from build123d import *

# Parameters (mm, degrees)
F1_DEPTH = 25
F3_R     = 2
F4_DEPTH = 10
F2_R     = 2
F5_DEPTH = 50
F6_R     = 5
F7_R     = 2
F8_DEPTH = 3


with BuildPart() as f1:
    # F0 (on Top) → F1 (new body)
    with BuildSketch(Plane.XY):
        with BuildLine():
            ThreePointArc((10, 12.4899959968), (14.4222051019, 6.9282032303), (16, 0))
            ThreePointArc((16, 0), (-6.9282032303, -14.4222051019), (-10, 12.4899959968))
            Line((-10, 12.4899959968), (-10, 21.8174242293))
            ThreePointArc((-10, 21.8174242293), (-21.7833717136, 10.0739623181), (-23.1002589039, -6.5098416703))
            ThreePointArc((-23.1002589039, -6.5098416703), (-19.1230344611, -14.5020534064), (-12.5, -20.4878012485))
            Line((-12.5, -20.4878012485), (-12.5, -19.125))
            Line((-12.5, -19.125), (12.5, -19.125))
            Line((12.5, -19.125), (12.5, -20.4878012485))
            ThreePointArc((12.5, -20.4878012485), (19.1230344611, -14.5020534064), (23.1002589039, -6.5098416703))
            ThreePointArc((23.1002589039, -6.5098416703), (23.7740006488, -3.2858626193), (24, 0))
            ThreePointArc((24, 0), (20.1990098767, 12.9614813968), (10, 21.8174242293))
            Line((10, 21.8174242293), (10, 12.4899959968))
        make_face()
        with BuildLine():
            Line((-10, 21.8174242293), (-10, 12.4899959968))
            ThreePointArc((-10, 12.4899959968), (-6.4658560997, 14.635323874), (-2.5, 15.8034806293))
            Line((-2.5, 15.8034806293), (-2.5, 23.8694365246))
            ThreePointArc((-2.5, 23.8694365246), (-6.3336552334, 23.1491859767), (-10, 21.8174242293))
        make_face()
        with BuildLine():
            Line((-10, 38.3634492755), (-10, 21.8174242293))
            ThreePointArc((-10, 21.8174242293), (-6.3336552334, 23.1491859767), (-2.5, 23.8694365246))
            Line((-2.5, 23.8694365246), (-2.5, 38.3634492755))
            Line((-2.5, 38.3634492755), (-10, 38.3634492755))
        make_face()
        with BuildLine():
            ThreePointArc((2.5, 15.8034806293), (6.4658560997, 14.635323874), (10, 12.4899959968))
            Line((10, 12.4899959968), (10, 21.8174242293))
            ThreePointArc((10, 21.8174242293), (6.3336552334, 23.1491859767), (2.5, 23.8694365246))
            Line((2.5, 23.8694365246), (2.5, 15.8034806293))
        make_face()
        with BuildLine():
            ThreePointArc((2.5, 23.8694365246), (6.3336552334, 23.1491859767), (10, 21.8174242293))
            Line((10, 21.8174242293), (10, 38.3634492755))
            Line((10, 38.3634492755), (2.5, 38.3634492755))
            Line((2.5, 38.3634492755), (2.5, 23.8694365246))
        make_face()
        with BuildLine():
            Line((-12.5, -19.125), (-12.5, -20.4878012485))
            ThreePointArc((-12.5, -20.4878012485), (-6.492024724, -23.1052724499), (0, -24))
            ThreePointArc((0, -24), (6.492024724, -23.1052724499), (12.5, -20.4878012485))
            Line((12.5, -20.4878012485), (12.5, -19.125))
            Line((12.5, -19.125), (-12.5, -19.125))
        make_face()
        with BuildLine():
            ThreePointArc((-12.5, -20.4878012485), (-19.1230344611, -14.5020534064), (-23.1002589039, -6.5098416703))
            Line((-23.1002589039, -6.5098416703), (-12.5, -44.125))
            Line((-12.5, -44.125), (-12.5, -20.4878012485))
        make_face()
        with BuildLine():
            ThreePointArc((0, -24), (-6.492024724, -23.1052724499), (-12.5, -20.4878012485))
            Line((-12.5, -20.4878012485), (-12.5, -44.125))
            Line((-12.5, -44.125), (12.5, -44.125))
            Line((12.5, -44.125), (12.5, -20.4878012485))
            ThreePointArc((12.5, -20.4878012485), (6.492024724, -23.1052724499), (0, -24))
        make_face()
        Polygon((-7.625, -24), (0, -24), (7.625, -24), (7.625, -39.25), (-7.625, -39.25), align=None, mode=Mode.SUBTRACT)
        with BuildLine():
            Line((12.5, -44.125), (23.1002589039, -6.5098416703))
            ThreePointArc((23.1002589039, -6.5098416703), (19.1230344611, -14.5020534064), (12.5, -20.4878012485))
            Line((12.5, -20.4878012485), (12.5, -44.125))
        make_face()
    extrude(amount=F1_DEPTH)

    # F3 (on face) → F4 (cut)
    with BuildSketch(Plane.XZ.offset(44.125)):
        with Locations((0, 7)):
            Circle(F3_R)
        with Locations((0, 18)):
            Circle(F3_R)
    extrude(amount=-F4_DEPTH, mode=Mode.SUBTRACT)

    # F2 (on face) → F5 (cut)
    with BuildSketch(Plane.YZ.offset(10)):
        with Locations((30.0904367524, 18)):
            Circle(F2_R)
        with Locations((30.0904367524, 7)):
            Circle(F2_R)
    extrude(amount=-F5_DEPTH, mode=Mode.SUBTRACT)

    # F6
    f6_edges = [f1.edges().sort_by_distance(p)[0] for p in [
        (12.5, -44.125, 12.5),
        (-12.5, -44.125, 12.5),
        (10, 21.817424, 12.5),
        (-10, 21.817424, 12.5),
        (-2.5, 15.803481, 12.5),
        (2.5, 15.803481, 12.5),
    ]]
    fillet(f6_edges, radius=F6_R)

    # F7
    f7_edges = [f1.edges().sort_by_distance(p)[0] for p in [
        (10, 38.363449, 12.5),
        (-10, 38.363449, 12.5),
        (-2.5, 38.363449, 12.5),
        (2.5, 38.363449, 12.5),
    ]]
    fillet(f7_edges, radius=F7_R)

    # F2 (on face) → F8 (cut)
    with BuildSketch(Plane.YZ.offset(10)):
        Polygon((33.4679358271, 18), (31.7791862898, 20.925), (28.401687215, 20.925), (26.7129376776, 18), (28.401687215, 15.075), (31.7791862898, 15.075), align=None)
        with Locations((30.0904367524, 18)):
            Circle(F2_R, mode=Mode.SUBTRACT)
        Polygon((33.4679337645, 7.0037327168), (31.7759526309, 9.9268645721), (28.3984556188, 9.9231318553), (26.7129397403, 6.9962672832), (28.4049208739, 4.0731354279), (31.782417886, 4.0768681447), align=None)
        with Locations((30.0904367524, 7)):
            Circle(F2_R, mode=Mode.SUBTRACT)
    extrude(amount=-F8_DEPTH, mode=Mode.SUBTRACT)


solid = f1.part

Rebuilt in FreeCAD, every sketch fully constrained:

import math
import FreeCAD as App
import Part
import Sketcher
from FreeCAD import Vector
Q = App.Units.Quantity


def edges_at(feature, points):
    """Names of the edges that pass closest to the given points."""
    edges = feature.Shape.Edges
    near = lambda p: min(range(len(edges)), key=lambda i: edges[i].distToShape(Part.Vertex(*p))[0])
    return sorted({f"Edge{near(p) + 1}" for p in points})

doc = App.newDocument("Part")
body = doc.addObject("PartDesign::Body", "Body")

# Sketch on XY plane
sketch1 = doc.addObject("Sketcher::SketchObject", "Sketch")
body.addObject(sketch1)
sketch1.AttachmentSupport = (doc.XY_Plane, [""])
sketch1.MapMode = "FlatFace"
sketch1.addGeometry(Part.ArcOfCircle(Part.Circle(Vector(0, 0, 0), Vector(0, 0, 1), 16), math.radians(0), math.radians(51)), False)
sketch1.addGeometry(Part.ArcOfCircle(Part.Circle(Vector(0, 0, 0), Vector(0, 0, 1), 16), math.radians(129), math.radians(360)), False)
sketch1.addGeometry(Part.ArcOfCircle(Part.Circle(Vector(0, 0, 0), Vector(0, 0, 1), 16), math.radians(99), math.radians(129)), False)
sketch1.addGeometry(Part.LineSegment(Vector(-2, 16, 0), Vector(-2, 38, 0)), False)
sketch1.addGeometry(Part.LineSegment(Vector(-2, 38, 0), Vector(-10, 38, 0)), False)
sketch1.addGeometry(Part.LineSegment(Vector(-10, 38, 0), Vector(-10, 22, 0)), False)
sketch1.addGeometry(Part.ArcOfCircle(Part.Circle(Vector(0, 0, 0), Vector(0, 0, 1), 24), math.radians(115), math.radians(196)), False)
sketch1.addGeometry(Part.LineSegment(Vector(-23, -7, 0), Vector(-12, -44, 0)), False)
sketch1.addGeometry(Part.LineSegment(Vector(-12, -44, 0), Vector(12, -44, 0)), False)
sketch1.addGeometry(Part.LineSegment(Vector(12, -44, 0), Vector(23, -7, 0)), False)
sketch1.addGeometry(Part.ArcOfCircle(Part.Circle(Vector(0, 0, 0), Vector(0, 0, 1), 24), math.radians(-15.74), math.radians(0)), False)
sketch1.addGeometry(Part.ArcOfCircle(Part.Circle(Vector(0, 0, 0), Vector(0, 0, 1), 24), math.radians(0), math.radians(65)), False)
sketch1.addGeometry(Part.LineSegment(Vector(10, 22, 0), Vector(10, 38, 0)), False)
sketch1.addGeometry(Part.LineSegment(Vector(10, 38, 0), Vector(2, 38, 0)), False)
sketch1.addGeometry(Part.LineSegment(Vector(2, 38, 0), Vector(2, 16, 0)), False)
sketch1.addGeometry(Part.ArcOfCircle(Part.Circle(Vector(0, 0, 0), Vector(0, 0, 1), 16), math.radians(51), math.radians(81)), False)
sketch1.addGeometry(Part.LineSegment(Vector(-8, -39, 0), Vector(-8, -24, 0)), False)
sketch1.addGeometry(Part.LineSegment(Vector(-8, -24, 0), Vector(8, -24, 0)), False)
sketch1.addGeometry(Part.LineSegment(Vector(8, -24, 0), Vector(8, -39, 0)), False)
sketch1.addGeometry(Part.LineSegment(Vector(8, -39, 0), Vector(-8, -39, 0)), False)
sketch1.addConstraint(Sketcher.Constraint("Tangent", 0, 1, 1, 2))
sketch1.addConstraint(Sketcher.Constraint("Tangent", 1, 1, 2, 2))
sketch1.addConstraint(Sketcher.Constraint("Coincident", 2, 1, 3, 1))
sketch1.addConstraint(Sketcher.Constraint("Coincident", 3, 2, 4, 1))
sketch1.addConstraint(Sketcher.Constraint("Coincident", 4, 2, 5, 1))
sketch1.addConstraint(Sketcher.Constraint("Coincident", 5, 2, 6, 1))
sketch1.addConstraint(Sketcher.Constraint("Tangent", 6, 2, 7, 1))
sketch1.addConstraint(Sketcher.Constraint("Coincident", 7, 2, 8, 1))
sketch1.addConstraint(Sketcher.Constraint("Coincident", 8, 2, 9, 1))
sketch1.addConstraint(Sketcher.Constraint("Tangent", 9, 2, 10, 1))
sketch1.addConstraint(Sketcher.Constraint("Tangent", 10, 2, 11, 1))
sketch1.addConstraint(Sketcher.Constraint("Coincident", 11, 2, 12, 1))
sketch1.addConstraint(Sketcher.Constraint("Coincident", 12, 2, 13, 1))
sketch1.addConstraint(Sketcher.Constraint("Coincident", 13, 2, 14, 1))
sketch1.addConstraint(Sketcher.Constraint("Coincident", 14, 2, 15, 2))
sketch1.addConstraint(Sketcher.Constraint("Tangent", 15, 1, 0, 2))
sketch1.addConstraint(Sketcher.Constraint("Coincident", 16, 2, 17, 1))
sketch1.addConstraint(Sketcher.Constraint("Coincident", 17, 2, 18, 1))
sketch1.addConstraint(Sketcher.Constraint("Coincident", 18, 2, 19, 1))
sketch1.addConstraint(Sketcher.Constraint("Coincident", 19, 2, 16, 1))
sketch1.addConstraint(Sketcher.Constraint("Vertical", 3))
sketch1.addConstraint(Sketcher.Constraint("Horizontal", 4))
sketch1.addConstraint(Sketcher.Constraint("Vertical", 5))
sketch1.addConstraint(Sketcher.Constraint("Horizontal", 8))
sketch1.addConstraint(Sketcher.Constraint("Vertical", 12))
sketch1.addConstraint(Sketcher.Constraint("Horizontal", 13))
sketch1.addConstraint(Sketcher.Constraint("Vertical", 14))
sketch1.addConstraint(Sketcher.Constraint("Vertical", 16))
sketch1.addConstraint(Sketcher.Constraint("Horizontal", 17))
sketch1.addConstraint(Sketcher.Constraint("Vertical", 18))
sketch1.addConstraint(Sketcher.Constraint("Horizontal", 19))
sketch1.addConstraint(Sketcher.Constraint("Coincident", 0, 3, -1, 1))
sketch1.addConstraint(Sketcher.Constraint("Coincident", 2, 3, -1, 1))
sketch1.addConstraint(Sketcher.Constraint("Coincident", 6, 3, -1, 1))
sketch1.addConstraint(Sketcher.Constraint("Coincident", 10, 3, -1, 1))
sketch1.addConstraint(Sketcher.Constraint("Equal", 6, 10))
sketch1.addConstraint(Sketcher.Constraint("Equal", 10, 11))
sketch1.addConstraint(Sketcher.Constraint("Equal", 2, 15))
sketch1.addConstraint(Sketcher.Constraint("Symmetric", 4, 2, 12, 2, -2))
sketch1.addConstraint(Sketcher.Constraint("PointOnObject", 0, 1, -1))
sketch1.addConstraint(Sketcher.Constraint("PointOnObject", 10, 2, -1))
sketch1.addConstraint(Sketcher.Constraint("Horizontal", 6, 2, 9, 2))
sketch1.addConstraint(Sketcher.Constraint("Horizontal", 2, 1, 14, 2))
sketch1.addConstraint(Sketcher.Constraint("Horizontal", 1, 1, 15, 1))
sketch1.addConstraint(Sketcher.Constraint("Vertical", 1, 1, 4, 2))
sketch1.addConstraint(Sketcher.Constraint("Equal", 19, 16))
sketch1.addConstraint(Sketcher.Constraint("Radius", 0, Q("16 mm")))
sketch1.addConstraint(Sketcher.Constraint("Radius", 6, Q("24 mm")))
sketch1.addConstraint(Sketcher.Constraint("DistanceX", 8, 1, 8, 2, Q("25 mm")))
sketch1.addConstraint(Sketcher.Constraint("DistanceX", 4, 2, 4, 1, Q("7.5 mm")))
sketch1.addConstraint(Sketcher.Constraint("DistanceX", 1, 1, -1, 1, Q("10 mm")))
sketch1.addConstraint(Sketcher.Constraint("DistanceY", 16, 2, -1, 1, Q("24 mm")))
sketch1.addConstraint(Sketcher.Constraint("DistanceX", 17, 1, 17, 2, Q("15.25 mm")))
sketch1.addConstraint(Sketcher.Constraint("DistanceY", 7, 2, -1, 1, Q("44.125 mm")))
sketch1.addConstraint(Sketcher.Constraint("DistanceX", 16, 2, -1, 1, Q("7.625 mm")))
sketch1.addConstraint(Sketcher.Constraint("DistanceY", 3, 1, 3, 2, Q("22.559969 mm")))
pad1 = doc.addObject("PartDesign::Pad", "Pad")
body.addObject(pad1)
pad1.Profile = sketch1
pad1.Length = 25

# Sketch on XZ plane
sketch2 = doc.addObject("Sketcher::SketchObject", "Sketch001")
body.addObject(sketch2)
sketch2.AttachmentSupport = (doc.XZ_Plane, [""])
sketch2.MapMode = "FlatFace"
sketch2.AttachmentOffset = App.Placement(Vector(0, 0, 44.125), App.Rotation())
sketch2.addGeometry(Part.Circle(Vector(0, 7, 0), Vector(0, 0, 1), 2), False)
sketch2.addGeometry(Part.Circle(Vector(0, 18, 0), Vector(0, 0, 1), 2), False)
sketch2.addConstraint(Sketcher.Constraint("Equal", 0, 1))
sketch2.addConstraint(Sketcher.Constraint("PointOnObject", 0, 3, -2))
sketch2.addConstraint(Sketcher.Constraint("PointOnObject", 1, 3, -2))
sketch2.addConstraint(Sketcher.Constraint("Diameter", 0, Q("4 mm")))
sketch2.addConstraint(Sketcher.Constraint("DistanceY", -1, 1, 0, 3, Q("7 mm")))
sketch2.addConstraint(Sketcher.Constraint("DistanceY", -1, 1, 1, 3, Q("18 mm")))
pocket1 = doc.addObject("PartDesign::Pocket", "Pocket")
body.addObject(pocket1)
pocket1.Profile = sketch2
pocket1.Length = 10

# Sketch on YZ plane
sketch3 = doc.addObject("Sketcher::SketchObject", "Sketch002")
body.addObject(sketch3)
sketch3.AttachmentSupport = (doc.YZ_Plane, [""])
sketch3.MapMode = "FlatFace"
sketch3.AttachmentOffset = App.Placement(Vector(0, 0, 10), App.Rotation())
sketch3.addGeometry(Part.Circle(Vector(30.1, 18, 0), Vector(0, 0, 1), 2), False)
sketch3.addGeometry(Part.Circle(Vector(30.1, 7, 0), Vector(0, 0, 1), 2), False)
sketch3.addConstraint(Sketcher.Constraint("Equal", 0, 1))
sketch3.addConstraint(Sketcher.Constraint("Vertical", 0, 3, 1, 3))
sketch3.addConstraint(Sketcher.Constraint("Diameter", 0, Q("4 mm")))
sketch3.addConstraint(Sketcher.Constraint("DistanceY", -1, 1, 0, 3, Q("18 mm")))
sketch3.addConstraint(Sketcher.Constraint("DistanceY", -1, 1, 1, 3, Q("7 mm")))
sketch3.addConstraint(Sketcher.Constraint("DistanceX", -1, 1, 0, 3, Q("30.090437 mm")))
pocket2 = doc.addObject("PartDesign::Pocket", "Pocket001")
body.addObject(pocket2)
pocket2.Profile = sketch3
pocket2.Length = 50
doc.recompute()

fillet = doc.addObject("PartDesign::Fillet", "Fillet")
body.addObject(fillet)
fillet.Base = (pocket2, edges_at(pocket2, [
    (12.5, -44.125, 12.5),
    (-12.5, -44.125, 12.5),
    (10, 21.817, 12.5),
    (-10, 21.817, 12.5),
    (-2.5, 15.803, 12.5),
    (2.5, 15.803, 12.5),
]))
fillet.Radius = 5
doc.recompute()

fillet2 = doc.addObject("PartDesign::Fillet", "Fillet001")
body.addObject(fillet2)
fillet2.Base = (fillet, edges_at(fillet, [
    (10, 38.363, 12.5),
    (-10, 38.363, 12.5),
    (-2.5, 38.363, 12.5),
    (2.5, 38.363, 12.5),
]))
fillet2.Radius = 2

# Sketch on YZ plane
sketch4 = doc.addObject("Sketcher::SketchObject", "Sketch003")
body.addObject(sketch4)
sketch4.AttachmentSupport = (doc.YZ_Plane, [""])
sketch4.MapMode = "FlatFace"
sketch4.AttachmentOffset = App.Placement(Vector(0, 0, 10), App.Rotation())
sketch4.addGeometry(Part.LineSegment(Vector(33.5, 18, 0), Vector(31.8, 20.9, 0)), False)
sketch4.addGeometry(Part.LineSegment(Vector(31.8, 20.9, 0), Vector(28.4, 20.9, 0)), False)
sketch4.addGeometry(Part.LineSegment(Vector(28.4, 20.9, 0), Vector(26.7, 18, 0)), False)
sketch4.addGeometry(Part.LineSegment(Vector(26.7, 18, 0), Vector(28.4, 15.1, 0)), False)
sketch4.addGeometry(Part.LineSegment(Vector(28.4, 15.1, 0), Vector(31.8, 15.1, 0)), False)
sketch4.addGeometry(Part.LineSegment(Vector(31.8, 15.1, 0), Vector(33.5, 18, 0)), False)
sketch4.addGeometry(Part.Circle(Vector(30.1, 18, 0), Vector(0, 0, 1), 2), False)
sketch4.addGeometry(Part.LineSegment(Vector(33.5, 7, 0), Vector(31.8, 9.9, 0)), False)
sketch4.addGeometry(Part.LineSegment(Vector(31.8, 9.9, 0), Vector(28.4, 9.9, 0)), False)
sketch4.addGeometry(Part.LineSegment(Vector(28.4, 9.9, 0), Vector(26.7, 7, 0)), False)
sketch4.addGeometry(Part.LineSegment(Vector(26.7, 7, 0), Vector(28.4, 4.1, 0)), False)
sketch4.addGeometry(Part.LineSegment(Vector(28.4, 4.1, 0), Vector(31.8, 4.1, 0)), False)
sketch4.addGeometry(Part.LineSegment(Vector(31.8, 4.1, 0), Vector(33.5, 7, 0)), False)
sketch4.addGeometry(Part.Circle(Vector(30.1, 7, 0), Vector(0, 0, 1), 2), False)
sketch4.addConstraint(Sketcher.Constraint("Coincident", 0, 2, 1, 1))
sketch4.addConstraint(Sketcher.Constraint("Coincident", 1, 2, 2, 1))
sketch4.addConstraint(Sketcher.Constraint("Coincident", 2, 2, 3, 1))
sketch4.addConstraint(Sketcher.Constraint("Coincident", 3, 2, 4, 1))
sketch4.addConstraint(Sketcher.Constraint("Coincident", 4, 2, 5, 1))
sketch4.addConstraint(Sketcher.Constraint("Coincident", 5, 2, 0, 1))
sketch4.addConstraint(Sketcher.Constraint("Coincident", 7, 2, 8, 1))
sketch4.addConstraint(Sketcher.Constraint("Coincident", 8, 2, 9, 1))
sketch4.addConstraint(Sketcher.Constraint("Coincident", 9, 2, 10, 1))
sketch4.addConstraint(Sketcher.Constraint("Coincident", 10, 2, 11, 1))
sketch4.addConstraint(Sketcher.Constraint("Coincident", 11, 2, 12, 1))
sketch4.addConstraint(Sketcher.Constraint("Coincident", 12, 2, 7, 1))
sketch4.addConstraint(Sketcher.Constraint("Horizontal", 1))
sketch4.addConstraint(Sketcher.Constraint("Horizontal", 4))
sketch4.addConstraint(Sketcher.Constraint("Equal", 6, 13))
sketch4.addConstraint(Sketcher.Constraint("Parallel", 0, 3))
sketch4.addConstraint(Sketcher.Constraint("Parallel", 2, 5))
sketch4.addConstraint(Sketcher.Constraint("Parallel", 7, 10))
sketch4.addConstraint(Sketcher.Constraint("Parallel", 8, 11))
sketch4.addConstraint(Sketcher.Constraint("Parallel", 9, 12))
sketch4.addConstraint(Sketcher.Constraint("Horizontal", 6, 3, 2, 2))
sketch4.addConstraint(Sketcher.Constraint("Horizontal", 2, 2, 5, 2))
sketch4.addConstraint(Sketcher.Constraint("Vertical", 6, 3, 13, 3))
sketch4.addConstraint(Sketcher.Constraint("Vertical", 1, 2, 3, 2))
sketch4.addConstraint(Sketcher.Constraint("Vertical", 0, 2, 4, 2))
sketch4.addConstraint(Sketcher.Constraint("Equal", 5, 7))
sketch4.addConstraint(Sketcher.Constraint("Equal", 7, 8))
sketch4.addConstraint(Sketcher.Constraint("Equal", 8, 9))
sketch4.addConstraint(Sketcher.Constraint("Equal", 9, 10))
sketch4.addConstraint(Sketcher.Constraint("Diameter", 6, Q("4 mm")))
sketch4.addConstraint(Sketcher.Constraint("Angle", 0, Q("120 deg")))
sketch4.addConstraint(Sketcher.Constraint("DistanceY", -1, 1, 6, 3, Q("18 mm")))
sketch4.addConstraint(Sketcher.Constraint("DistanceY", -1, 1, 13, 3, Q("7 mm")))
sketch4.addConstraint(Sketcher.Constraint("DistanceY", 3, 2, 1, 2, Q("5.85 mm")))
sketch4.addConstraint(Sketcher.Constraint("DistanceX", 1, 2, 1, 1, Q("3.377499 mm")))
sketch4.addConstraint(Sketcher.Constraint("DistanceX", 2, 2, 6, 3, Q("3.377499 mm")))
sketch4.addConstraint(Sketcher.Constraint("DistanceY", 11, 2, 9, 2, Q("2.919399 mm")))
sketch4.addConstraint(Sketcher.Constraint("DistanceY", -1, 1, 8, 2, Q("9.923132 mm")))
sketch4.addConstraint(Sketcher.Constraint("DistanceX", -1, 1, 9, 2, Q("26.71294 mm")))
sketch4.addConstraint(Sketcher.Constraint("DistanceX", -1, 1, 10, 2, Q("28.404921 mm")))
sketch4.addConstraint(Sketcher.Constraint("DistanceY", -1, 1, 11, 2, Q("4.076868 mm")))
sketch4.addConstraint(Sketcher.Constraint("DistanceX", 8, 2, 13, 3, Q("1.691981 mm")))
pocket3 = doc.addObject("PartDesign::Pocket", "Pocket002")
body.addObject(pocket3)
pocket3.Profile = sketch4
pocket3.Length = 3

doc.recompute()
